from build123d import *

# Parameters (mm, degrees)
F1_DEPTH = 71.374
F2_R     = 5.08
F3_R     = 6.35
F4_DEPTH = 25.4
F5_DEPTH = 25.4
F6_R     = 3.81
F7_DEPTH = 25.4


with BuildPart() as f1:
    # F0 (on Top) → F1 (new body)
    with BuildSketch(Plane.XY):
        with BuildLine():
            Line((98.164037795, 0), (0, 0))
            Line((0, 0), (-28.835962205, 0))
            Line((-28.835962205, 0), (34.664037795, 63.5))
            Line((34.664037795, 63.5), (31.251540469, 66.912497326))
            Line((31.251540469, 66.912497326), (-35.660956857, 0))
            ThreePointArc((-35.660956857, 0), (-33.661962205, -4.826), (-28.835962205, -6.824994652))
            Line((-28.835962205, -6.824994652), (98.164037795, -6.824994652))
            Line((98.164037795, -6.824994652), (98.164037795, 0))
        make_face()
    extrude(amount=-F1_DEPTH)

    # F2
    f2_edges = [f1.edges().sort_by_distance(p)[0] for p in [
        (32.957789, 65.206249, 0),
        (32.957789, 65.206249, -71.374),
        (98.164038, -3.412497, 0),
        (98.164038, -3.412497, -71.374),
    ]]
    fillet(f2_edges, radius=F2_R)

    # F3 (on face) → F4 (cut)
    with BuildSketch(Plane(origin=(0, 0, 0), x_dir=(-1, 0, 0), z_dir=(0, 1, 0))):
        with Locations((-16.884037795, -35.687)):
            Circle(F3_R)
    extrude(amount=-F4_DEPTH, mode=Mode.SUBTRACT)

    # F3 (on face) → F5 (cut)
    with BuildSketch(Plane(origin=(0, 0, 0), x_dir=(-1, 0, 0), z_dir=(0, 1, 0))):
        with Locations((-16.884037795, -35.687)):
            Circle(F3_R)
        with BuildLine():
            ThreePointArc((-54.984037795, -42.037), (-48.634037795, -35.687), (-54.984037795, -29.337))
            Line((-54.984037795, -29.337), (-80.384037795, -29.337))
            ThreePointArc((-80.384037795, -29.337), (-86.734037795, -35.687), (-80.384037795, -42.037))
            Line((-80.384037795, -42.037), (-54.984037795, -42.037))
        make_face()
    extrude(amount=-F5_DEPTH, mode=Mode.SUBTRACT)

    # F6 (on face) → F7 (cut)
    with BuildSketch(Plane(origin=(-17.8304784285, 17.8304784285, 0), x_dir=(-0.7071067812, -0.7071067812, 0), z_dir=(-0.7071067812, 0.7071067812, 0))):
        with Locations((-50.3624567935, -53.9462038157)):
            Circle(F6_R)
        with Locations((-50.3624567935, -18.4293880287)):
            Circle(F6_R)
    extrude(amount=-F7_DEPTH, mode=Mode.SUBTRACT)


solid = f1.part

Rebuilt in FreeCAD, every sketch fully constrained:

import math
import FreeCAD as App
import Part
import Sketcher

V = App.Vector
Q = App.Units.Quantity


def edges_at(feature, points):
    """Names of the edges that pass closest to the given points."""
    edges = feature.Shape.Edges
    near = lambda p: min(range(len(edges)), key=lambda i: edges[i].distToShape(Part.Vertex(*p))[0])
    return sorted({f"Edge{near(p) + 1}" for p in points})

doc = App.newDocument("Part")
body = doc.addObject("PartDesign::Body", "Body")

# Sketch on XY plane
sketch1 = body.newObject("Sketcher::SketchObject", "Sketch")
sketch1.AttachmentSupport = (doc.getObject("XY_Plane"), [""])
sketch1.MapMode = "FlatFace"
sketch1.addGeometry([
    Part.LineSegment(V(98.2, 0, 0), V(-28.8, 0, 0)),  # 0
    Part.LineSegment(V(-28.8, 0, 0), V(34.7, 63.5, 0)),  # 1
    Part.LineSegment(V(34.7, 63.5, 0), V(31.3, 66.9, 0)),  # 2
    Part.LineSegment(V(31.3, 66.9, 0), V(-35.7, 0, 0)),  # 3
    Part.ArcOfCircle(Part.Circle(V(-28.8, 0, 0), V(0, 0, 1), 6.8), math.radians(180), math.radians(270)),  # 4
    Part.LineSegment(V(-28.8, -6.8, 0), V(98.2, -6.8, 0)),  # 5
    Part.LineSegment(V(98.2, -6.8, 0), V(98.2, 0, 0)),  # 6
], False)
sketch1.addConstraint([
    Sketcher.Constraint("Coincident", 0, 2, 1, 1),
    Sketcher.Constraint("Coincident", 1, 2, 2, 1),
    Sketcher.Constraint("Coincident", 2, 2, 3, 1),
    Sketcher.Constraint("Coincident", 3, 2, 4, 1),
    Sketcher.Constraint("Tangent", 4, 2, 5, 1),
    Sketcher.Constraint("Coincident", 5, 2, 6, 1),
    Sketcher.Constraint("Coincident", 6, 2, 0, 1),
    Sketcher.Constraint("Horizontal", 0),
    Sketcher.Constraint("Horizontal", 5),
    Sketcher.Constraint("Vertical", 6),
    Sketcher.Constraint("Coincident", 0, 2, 4, 3),
    Sketcher.Constraint("PointOnObject", 4, 3, -1),
    Sketcher.Constraint("PointOnObject", 3, 2, -1),
    Sketcher.Constraint("Perpendicular", 1, 2),
    Sketcher.Constraint("Perpendicular", 2, 3),
    Sketcher.Constraint("DistanceX", 0, 2, 0, 1, Q("5 in")),
    Sketcher.Constraint("Angle", 1, Q("45 deg")),
    Sketcher.Constraint("DistanceY", -1, 1, 1, 2, Q("2.5 in")),
    Sketcher.Constraint("Distance", 2, Q("0.19 in")),
    Sketcher.Constraint("DistanceX", -1, 1, 2, 2, 31.25154),
])
pad1 = body.newObject("PartDesign::Pad", "Pad")
pad1.Profile = sketch1
pad1.Length = Q("2.81 in")
pad1.Reversed = True
doc.recompute()

fillet = body.newObject("PartDesign::Fillet", "Fillet")
fillet.Base = (pad1, edges_at(pad1, [
    (32.958, 65.206, 0),
    (32.958, 65.206, -71.374),
    (98.164, -3.412, 0),
    (98.164, -3.412, -71.374),
]))
fillet.Radius = Q("0.2 in")

# Sketch on XZ plane
sketch2 = body.newObject("Sketcher::SketchObject", "Sketch001")
sketch2.AttachmentSupport = (doc.getObject("XZ_Plane"), [""])
sketch2.MapMode = "FlatFace"
sketch2.addGeometry(Part.Circle(V(17, -36, 0), V(0, 0, 1), 6), False)
sketch2.addConstraint([
    Sketcher.Constraint("Diameter", 0, Q("0.5 in")),
    Sketcher.Constraint("DistanceY", 0, 3, -1, 1, Q("1.405 in")),
    Sketcher.Constraint("DistanceX", -1, 1, 0, 3, 16.884038),
])
pocket1 = body.newObject("PartDesign::Pocket", "Pocket")
pocket1.Profile = sketch2
pocket1.Length = Q("1 in")
pocket1.Reversed = True

# Sketch on XZ plane
sketch3 = body.newObject("Sketcher::SketchObject", "Sketch002")
sketch3.AttachmentSupport = (doc.getObject("XZ_Plane"), [""])
sketch3.MapMode = "FlatFace"
sketch3.addGeometry([
    Part.Circle(V(17, -36, 0), V(0, 0, 1), 6),  # 0
    Part.ArcOfCircle(Part.Circle(V(55, -36, 0), V(0, 0, 1), 6), math.radians(90), math.radians(270)),  # 1
    Part.LineSegment(V(55, -29, 0), V(80, -29, 0)),  # 2
    Part.ArcOfCircle(Part.Circle(V(80, -36, 0), V(0, 0, 1), 6), math.radians(-90), math.radians(90)),  # 3
    Part.LineSegment(V(80, -42, 0), V(55, -42, 0)),  # 4
], False)
sketch3.addConstraint([
    Sketcher.Constraint("Tangent", 1, 1, 2, 1),
    Sketcher.Constraint("Tangent", 2, 2, 3, 2),
    Sketcher.Constraint("Tangent", 3, 1, 4, 1),
    Sketcher.Constraint("Tangent", 4, 2, 1, 2),
    Sketcher.Constraint("Horizontal", 2),
    Sketcher.Constraint("Horizontal", 4),
    Sketcher.Constraint("Equal", 0, 1),
    Sketcher.Constraint("Horizontal", 0, 3, 1, 3),
    Sketcher.Constraint("Diameter", 0, Q("0.5 in")),
    Sketcher.Constraint("DistanceX", 2, 1, 2, 2, Q("1 in")),
    Sketcher.Constraint("DistanceX", 0, 3, 1, 3, Q("1.5 in")),
    Sketcher.Constraint("DistanceY", 0, 3, -1, 1, Q("1.405 in")),
    Sketcher.Constraint("DistanceX", -1, 1, 0, 3, 16.884038),
])
pocket2 = body.newObject("PartDesign::Pocket", "Pocket001")
pocket2.Profile = sketch3
pocket2.Length = Q("1 in")
pocket2.Reversed = True

# Sketch on an angled plane
sketch4 = body.newObject("Sketcher::SketchObject", "Sketch003")
sketch4.Placement = App.Placement(V(-17.830478, 17.830478, 0), App.Rotation(V(-0.707106781, -0.707106781, 0), V(0, 0, 0.999999999), V(-0.707106781, 0.707106781, 0), "ZXY"))
sketch4.addGeometry([
    Part.Circle(V(-50.4, -53.9, 0), V(0, 0, 1), 3.8),
    Part.Circle(V(-50.4, -18.4, 0), V(0, 0, 1), 3.8),
], False)
sketch4.addConstraint([
    Sketcher.Constraint("Equal", 0, 1),
    Sketcher.Constraint("Vertical", 0, 3, 1, 3),
    Sketcher.Constraint("Diameter", 0, Q("0.3 in")),
    Sketcher.Constraint("DistanceY", 0, 3, 1, 3, Q("1.3982998 in")),
    Sketcher.Constraint("DistanceY", 1, 3, -1, 1, 18.429388),
    Sketcher.Constraint("DistanceX", 0, 3, -1, 1, 50.362457),
])
pocket3 = body.newObject("PartDesign::Pocket", "Pocket002")
pocket3.Profile = sketch4
pocket3.Length = Q("1 in")

doc.recompute()
